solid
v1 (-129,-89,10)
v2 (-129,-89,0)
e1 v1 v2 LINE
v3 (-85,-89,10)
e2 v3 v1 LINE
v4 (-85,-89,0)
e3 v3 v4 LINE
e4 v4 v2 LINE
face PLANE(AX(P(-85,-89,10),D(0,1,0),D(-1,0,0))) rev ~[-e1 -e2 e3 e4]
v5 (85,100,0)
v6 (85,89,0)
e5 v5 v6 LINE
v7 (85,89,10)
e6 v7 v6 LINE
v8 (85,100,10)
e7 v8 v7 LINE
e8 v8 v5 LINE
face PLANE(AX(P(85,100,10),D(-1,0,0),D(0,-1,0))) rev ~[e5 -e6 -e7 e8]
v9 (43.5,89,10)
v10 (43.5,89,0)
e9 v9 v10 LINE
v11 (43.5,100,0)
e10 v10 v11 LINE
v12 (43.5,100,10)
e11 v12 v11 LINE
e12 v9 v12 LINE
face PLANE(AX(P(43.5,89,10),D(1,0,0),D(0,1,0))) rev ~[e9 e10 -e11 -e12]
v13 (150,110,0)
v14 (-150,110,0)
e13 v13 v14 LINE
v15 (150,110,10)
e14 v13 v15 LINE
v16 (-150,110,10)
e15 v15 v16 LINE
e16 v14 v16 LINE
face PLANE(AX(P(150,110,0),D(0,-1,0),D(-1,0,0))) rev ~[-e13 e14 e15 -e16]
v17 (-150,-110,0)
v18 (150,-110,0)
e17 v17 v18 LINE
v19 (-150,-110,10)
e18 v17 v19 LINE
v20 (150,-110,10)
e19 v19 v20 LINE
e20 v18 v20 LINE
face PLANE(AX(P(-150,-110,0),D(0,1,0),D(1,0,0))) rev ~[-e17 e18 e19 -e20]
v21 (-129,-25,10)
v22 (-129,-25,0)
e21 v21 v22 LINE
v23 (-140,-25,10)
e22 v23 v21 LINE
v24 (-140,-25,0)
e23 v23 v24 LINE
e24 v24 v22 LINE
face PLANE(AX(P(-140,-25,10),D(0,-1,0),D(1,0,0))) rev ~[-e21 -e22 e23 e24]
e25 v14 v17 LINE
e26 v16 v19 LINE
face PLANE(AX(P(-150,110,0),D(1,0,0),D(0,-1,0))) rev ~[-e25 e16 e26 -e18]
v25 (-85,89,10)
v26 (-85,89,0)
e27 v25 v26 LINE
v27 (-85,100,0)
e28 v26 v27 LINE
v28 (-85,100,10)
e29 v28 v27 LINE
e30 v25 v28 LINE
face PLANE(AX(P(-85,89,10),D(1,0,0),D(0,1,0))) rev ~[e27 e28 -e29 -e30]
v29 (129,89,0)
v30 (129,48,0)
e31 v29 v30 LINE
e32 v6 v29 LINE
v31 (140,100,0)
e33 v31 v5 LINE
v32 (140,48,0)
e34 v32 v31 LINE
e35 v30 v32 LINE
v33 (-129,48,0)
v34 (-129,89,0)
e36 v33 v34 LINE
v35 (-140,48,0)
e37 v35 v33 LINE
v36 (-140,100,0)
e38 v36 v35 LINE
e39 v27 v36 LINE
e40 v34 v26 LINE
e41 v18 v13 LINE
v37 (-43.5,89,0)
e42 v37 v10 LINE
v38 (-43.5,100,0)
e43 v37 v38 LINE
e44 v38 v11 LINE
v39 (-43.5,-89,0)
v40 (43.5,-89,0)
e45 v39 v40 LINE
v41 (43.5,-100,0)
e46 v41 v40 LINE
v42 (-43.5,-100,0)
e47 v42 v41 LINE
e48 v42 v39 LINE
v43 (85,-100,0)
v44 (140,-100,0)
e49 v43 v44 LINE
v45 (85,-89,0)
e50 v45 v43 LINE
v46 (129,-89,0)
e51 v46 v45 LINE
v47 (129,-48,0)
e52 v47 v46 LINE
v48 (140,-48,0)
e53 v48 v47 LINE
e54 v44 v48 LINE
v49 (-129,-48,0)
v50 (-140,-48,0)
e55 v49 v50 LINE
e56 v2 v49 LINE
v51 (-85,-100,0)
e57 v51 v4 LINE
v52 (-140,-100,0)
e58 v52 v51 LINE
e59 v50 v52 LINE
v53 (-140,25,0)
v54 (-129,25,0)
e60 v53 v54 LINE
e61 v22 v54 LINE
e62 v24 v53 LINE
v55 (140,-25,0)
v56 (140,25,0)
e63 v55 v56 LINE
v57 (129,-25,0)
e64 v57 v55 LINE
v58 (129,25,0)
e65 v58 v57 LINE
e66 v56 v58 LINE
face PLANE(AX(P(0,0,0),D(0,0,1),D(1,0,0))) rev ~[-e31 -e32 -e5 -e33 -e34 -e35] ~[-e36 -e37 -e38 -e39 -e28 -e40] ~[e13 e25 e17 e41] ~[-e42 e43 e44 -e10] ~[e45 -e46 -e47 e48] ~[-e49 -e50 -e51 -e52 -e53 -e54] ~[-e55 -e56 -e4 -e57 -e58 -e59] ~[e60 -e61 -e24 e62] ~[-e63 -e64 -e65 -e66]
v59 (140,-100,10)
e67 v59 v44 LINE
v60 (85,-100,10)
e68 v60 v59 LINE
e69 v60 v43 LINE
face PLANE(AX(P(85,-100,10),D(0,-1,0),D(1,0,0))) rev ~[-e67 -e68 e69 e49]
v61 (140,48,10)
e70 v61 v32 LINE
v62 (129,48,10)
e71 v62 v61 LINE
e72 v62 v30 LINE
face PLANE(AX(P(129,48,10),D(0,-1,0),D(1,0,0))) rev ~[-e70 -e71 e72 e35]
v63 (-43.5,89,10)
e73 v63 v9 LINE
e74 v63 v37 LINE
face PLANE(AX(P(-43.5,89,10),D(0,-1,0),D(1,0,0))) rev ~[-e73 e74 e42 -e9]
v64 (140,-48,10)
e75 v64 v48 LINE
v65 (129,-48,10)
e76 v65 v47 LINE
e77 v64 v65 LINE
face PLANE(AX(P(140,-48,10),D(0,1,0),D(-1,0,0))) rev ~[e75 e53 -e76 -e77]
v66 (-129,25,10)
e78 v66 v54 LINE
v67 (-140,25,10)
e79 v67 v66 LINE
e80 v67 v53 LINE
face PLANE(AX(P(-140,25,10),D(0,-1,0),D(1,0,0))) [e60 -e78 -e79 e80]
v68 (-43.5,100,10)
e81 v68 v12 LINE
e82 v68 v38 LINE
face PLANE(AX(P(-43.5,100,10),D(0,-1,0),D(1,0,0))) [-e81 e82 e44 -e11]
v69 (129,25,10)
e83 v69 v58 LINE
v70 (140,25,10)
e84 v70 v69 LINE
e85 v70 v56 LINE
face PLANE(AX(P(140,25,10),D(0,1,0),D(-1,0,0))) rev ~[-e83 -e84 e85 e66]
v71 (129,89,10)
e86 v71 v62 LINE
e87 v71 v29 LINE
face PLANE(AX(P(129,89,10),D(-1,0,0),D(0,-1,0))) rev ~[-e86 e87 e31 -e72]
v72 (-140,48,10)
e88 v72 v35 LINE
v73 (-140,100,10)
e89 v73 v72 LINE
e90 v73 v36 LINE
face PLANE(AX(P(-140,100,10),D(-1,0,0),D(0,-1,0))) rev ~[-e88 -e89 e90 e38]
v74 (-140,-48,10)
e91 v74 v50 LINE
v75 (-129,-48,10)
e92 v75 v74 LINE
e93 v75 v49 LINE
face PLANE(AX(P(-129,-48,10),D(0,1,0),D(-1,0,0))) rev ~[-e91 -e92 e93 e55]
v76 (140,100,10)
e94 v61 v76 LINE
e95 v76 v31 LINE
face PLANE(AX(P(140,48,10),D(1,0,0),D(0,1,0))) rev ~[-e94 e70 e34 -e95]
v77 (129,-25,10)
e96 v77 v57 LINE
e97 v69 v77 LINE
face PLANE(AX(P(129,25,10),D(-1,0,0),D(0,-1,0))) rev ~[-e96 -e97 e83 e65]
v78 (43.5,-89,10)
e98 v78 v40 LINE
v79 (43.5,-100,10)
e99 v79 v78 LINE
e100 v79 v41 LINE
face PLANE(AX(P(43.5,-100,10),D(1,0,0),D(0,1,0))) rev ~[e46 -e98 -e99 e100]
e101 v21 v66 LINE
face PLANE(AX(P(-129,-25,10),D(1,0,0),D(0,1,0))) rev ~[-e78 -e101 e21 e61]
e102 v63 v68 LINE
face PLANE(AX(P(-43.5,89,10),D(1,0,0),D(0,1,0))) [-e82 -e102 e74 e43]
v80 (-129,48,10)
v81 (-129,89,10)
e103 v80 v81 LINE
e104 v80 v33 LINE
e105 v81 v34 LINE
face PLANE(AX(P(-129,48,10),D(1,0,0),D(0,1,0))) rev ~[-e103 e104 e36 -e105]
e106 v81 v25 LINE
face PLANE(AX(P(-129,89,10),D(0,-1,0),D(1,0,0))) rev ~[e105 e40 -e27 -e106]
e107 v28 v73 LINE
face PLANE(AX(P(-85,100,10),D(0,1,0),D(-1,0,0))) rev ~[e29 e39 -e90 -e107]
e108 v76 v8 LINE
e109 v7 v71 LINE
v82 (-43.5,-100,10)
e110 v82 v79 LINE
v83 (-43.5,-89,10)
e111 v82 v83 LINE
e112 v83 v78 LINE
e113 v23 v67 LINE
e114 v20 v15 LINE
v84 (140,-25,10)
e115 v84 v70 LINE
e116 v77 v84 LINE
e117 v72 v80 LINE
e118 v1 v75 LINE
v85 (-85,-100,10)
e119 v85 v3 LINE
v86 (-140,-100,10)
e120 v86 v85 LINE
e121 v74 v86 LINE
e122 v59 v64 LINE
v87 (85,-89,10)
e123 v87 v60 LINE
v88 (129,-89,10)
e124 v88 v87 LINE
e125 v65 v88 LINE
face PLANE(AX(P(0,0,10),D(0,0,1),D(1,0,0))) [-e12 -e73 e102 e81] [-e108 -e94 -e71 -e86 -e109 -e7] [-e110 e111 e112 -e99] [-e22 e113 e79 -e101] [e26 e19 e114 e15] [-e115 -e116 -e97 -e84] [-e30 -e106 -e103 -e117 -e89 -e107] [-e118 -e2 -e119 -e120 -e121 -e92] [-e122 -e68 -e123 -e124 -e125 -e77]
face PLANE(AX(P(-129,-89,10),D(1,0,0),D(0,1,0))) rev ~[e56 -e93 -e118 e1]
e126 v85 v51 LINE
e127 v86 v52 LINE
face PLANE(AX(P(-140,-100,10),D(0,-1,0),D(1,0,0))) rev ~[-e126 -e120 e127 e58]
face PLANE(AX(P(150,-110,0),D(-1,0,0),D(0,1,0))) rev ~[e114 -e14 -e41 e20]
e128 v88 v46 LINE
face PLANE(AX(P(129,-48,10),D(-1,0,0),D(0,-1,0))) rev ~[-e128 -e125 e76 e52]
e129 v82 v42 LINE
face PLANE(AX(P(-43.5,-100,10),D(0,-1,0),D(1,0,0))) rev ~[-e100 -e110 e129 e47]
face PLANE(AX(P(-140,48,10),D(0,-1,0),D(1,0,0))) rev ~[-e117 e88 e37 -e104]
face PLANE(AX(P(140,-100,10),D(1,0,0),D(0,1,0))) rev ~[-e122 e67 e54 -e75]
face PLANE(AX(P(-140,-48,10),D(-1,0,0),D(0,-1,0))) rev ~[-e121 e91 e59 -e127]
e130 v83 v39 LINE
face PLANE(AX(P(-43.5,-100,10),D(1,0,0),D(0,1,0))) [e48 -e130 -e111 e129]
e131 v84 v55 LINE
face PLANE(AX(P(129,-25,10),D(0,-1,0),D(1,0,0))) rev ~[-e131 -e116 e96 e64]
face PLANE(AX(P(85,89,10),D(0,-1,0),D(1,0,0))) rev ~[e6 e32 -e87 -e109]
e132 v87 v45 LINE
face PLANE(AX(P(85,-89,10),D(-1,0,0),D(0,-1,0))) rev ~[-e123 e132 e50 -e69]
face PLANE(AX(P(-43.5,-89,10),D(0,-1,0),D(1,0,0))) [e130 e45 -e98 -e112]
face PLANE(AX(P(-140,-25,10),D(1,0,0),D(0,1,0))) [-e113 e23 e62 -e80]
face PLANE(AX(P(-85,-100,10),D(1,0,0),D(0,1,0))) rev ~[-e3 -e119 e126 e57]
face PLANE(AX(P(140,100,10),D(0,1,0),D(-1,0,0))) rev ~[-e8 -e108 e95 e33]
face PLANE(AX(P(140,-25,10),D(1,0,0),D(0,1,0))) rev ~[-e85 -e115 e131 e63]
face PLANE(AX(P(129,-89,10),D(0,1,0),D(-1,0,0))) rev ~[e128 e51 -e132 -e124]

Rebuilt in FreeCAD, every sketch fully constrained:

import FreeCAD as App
import Part
import Sketcher


def add_polygon(sketch, points):
    """Adds a closed chain of lines whose ends are joined by coincident constraints."""
    first, n = sketch.GeometryCount, len(points)
    for a, b in zip(points, points[1:] + points[:1]):
        sketch.addGeometry(Part.LineSegment(App.Vector(*a, 0), App.Vector(*b, 0)), False)
    for i in range(n):
        sketch.addConstraint(Sketcher.Constraint("Coincident", first + i, 2, first + (i + 1) % n, 1))

doc = App.newDocument("Part")
params = doc.addObject("Spreadsheet::Sheet", "Params")
for row, (alias, value) in enumerate([
    ("sketch1_width", "300 mm"),
    ("sketch1_height", "220 mm"),
    ("pad1_length", "10 mm"),
    ("sketch2_width", "55 mm"),
    ("sketch2_width2", "44 mm"),
    ("sketch2_height", "52 mm"),
    ("pocket1_length", "10 mm"),
    ("sketch3_width", "87 mm"),
    ("sketch3_height", "11 mm"),
    ("pocket2_length", "10 mm"),
    ("sketch4_width", "11 mm"),
    ("sketch4_height", "50 mm"),
    ("pocket3_length", "10 mm"),
], start=1):
    params.set(f"A{row}", alias)
    params.set(f"B{row}", "=" + value)
    params.setAlias(f"B{row}", alias)

body = doc.addObject("PartDesign::Body", "Body")

# Sketch on XY plane
sketch1 = doc.addObject("Sketcher::SketchObject", "Sketch")
body.addObject(sketch1)
sketch1.AttachmentSupport = (doc.XY_Plane, [""])
sketch1.MapMode = "FlatFace"
add_polygon(sketch1, [(150, 110), (-150, 110), (-150, -110), (150, -110)])  # lines 0-3
sketch1.addConstraint(Sketcher.Constraint("Horizontal", 0))
sketch1.addConstraint(Sketcher.Constraint("Vertical", 1))
sketch1.addConstraint(Sketcher.Constraint("Horizontal", 2))
sketch1.addConstraint(Sketcher.Constraint("Vertical", 3))
sketch1.addConstraint(Sketcher.Constraint("Symmetric", 0, 2, 2, 2, -1, 1))
sketch1.addConstraint(Sketcher.Constraint("DistanceX", 0, 2, 0, 1, 300.0))
sketch1.addConstraint(Sketcher.Constraint("DistanceY", 1, 2, 1, 1, 220.0))
sketch1.setExpression("Constraints[9]", "Params.sketch1_width")
sketch1.setExpression("Constraints[10]", "Params.sketch1_height")
pad1 = doc.addObject("PartDesign::Pad", "Pad")
body.addObject(pad1)
pad1.Profile = sketch1
pad1.setExpression("Length", "Params.pad1_length")

# Sketch on XY plane
sketch2 = doc.addObject("Sketcher::SketchObject", "Sketch001")
body.addObject(sketch2)
sketch2.AttachmentSupport = (doc.XY_Plane, [""])
sketch2.MapMode = "FlatFace"
sketch2.AttachmentOffset = App.Placement(App.Vector(0, 0, 10), App.Rotation())
add_polygon(sketch2, [(140, 48), (140, 100), (85, 100), (85, 89), (129, 89), (129, 48)])  # lines 0-5
add_polygon(sketch2, [(-85, 100), (-140, 100), (-140, 48), (-129, 48), (-129, 89), (-85, 89)])  # lines 6-11
add_polygon(sketch2, [(-140, -48), (-140, -100), (-85, -100), (-85, -89), (-129, -89), (-129, -48)])  # lines 12-17
add_polygon(sketch2, [(85, -100), (140, -100), (140, -48), (129, -48), (129, -89), (85, -89)])  # lines 18-23
sketch2.addConstraint(Sketcher.Constraint("Vertical", 0))
sketch2.addConstraint(Sketcher.Constraint("Horizontal", 1))
sketch2.addConstraint(Sketcher.Constraint("Vertical", 2))
sketch2.addConstraint(Sketcher.Constraint("Horizontal", 3))
sketch2.addConstraint(Sketcher.Constraint("Vertical", 4))
sketch2.addConstraint(Sketcher.Constraint("Horizontal", 5))
sketch2.addConstraint(Sketcher.Constraint("Horizontal", 6))
sketch2.addConstraint(Sketcher.Constraint("Vertical", 7))
sketch2.addConstraint(Sketcher.Constraint("Horizontal", 8))
sketch2.addConstraint(Sketcher.Constraint("Vertical", 9))
sketch2.addConstraint(Sketcher.Constraint("Horizontal", 10))
sketch2.addConstraint(Sketcher.Constraint("Vertical", 11))
sketch2.addConstraint(Sketcher.Constraint("Vertical", 12))
sketch2.addConstraint(Sketcher.Constraint("Horizontal", 13))
sketch2.addConstraint(Sketcher.Constraint("Vertical", 14))
sketch2.addConstraint(Sketcher.Constraint("Horizontal", 15))
sketch2.addConstraint(Sketcher.Constraint("Vertical", 16))
sketch2.addConstraint(Sketcher.Constraint("Horizontal", 17))
sketch2.addConstraint(Sketcher.Constraint("Horizontal", 18))
sketch2.addConstraint(Sketcher.Constraint("Vertical", 19))
sketch2.addConstraint(Sketcher.Constraint("Horizontal", 20))
sketch2.addConstraint(Sketcher.Constraint("Vertical", 21))
sketch2.addConstraint(Sketcher.Constraint("Horizontal", 22))
sketch2.addConstraint(Sketcher.Constraint("Vertical", 23))
sketch2.addConstraint(Sketcher.Constraint("Symmetric", 0, 2, 12, 2, -1, 1))
sketch2.addConstraint(Sketcher.Constraint("Symmetric", 2, 2, 14, 2, -1, 1))
sketch2.addConstraint(Sketcher.Constraint("Symmetric", 4, 2, 16, 2, -1, 1))
sketch2.addConstraint(Sketcher.Constraint("Symmetric", 6, 2, 18, 2, -1, 1))
sketch2.addConstraint(Sketcher.Constraint("Symmetric", 8, 2, 20, 2, -1, 1))
sketch2.addConstraint(Sketcher.Constraint("Symmetric", 10, 2, 22, 2, -1, 1))
sketch2.addConstraint(Sketcher.Constraint("Symmetric", 0, 2, 6, 2, -2))
sketch2.addConstraint(Sketcher.Constraint("Symmetric", 4, 2, 8, 2, -2))
sketch2.addConstraint(Sketcher.Constraint("Symmetric", 2, 2, 10, 2, -2))
sketch2.addConstraint(Sketcher.Constraint("Equal", 20, 2))
sketch2.addConstraint(Sketcher.Constraint("DistanceX", 1, 2, 1, 1, 55.0))
sketch2.addConstraint(Sketcher.Constraint("DistanceX", 3, 1, 3, 2, 44.0))
sketch2.addConstraint(Sketcher.Constraint("DistanceY", 0, 1, 0, 2, 52.0))
sketch2.addConstraint(Sketcher.Constraint("DistanceX", -1, 1, 0, 2, 140.0))
sketch2.addConstraint(Sketcher.Constraint("DistanceY", -1, 1, 0, 2, 100.0))
sketch2.setExpression("Constraints[58]", "Params.sketch2_width")
sketch2.setExpression("Constraints[59]", "Params.sketch2_width2")
sketch2.setExpression("Constraints[60]", "Params.sketch2_height")
pocket1 = doc.addObject("PartDesign::Pocket", "Pocket")
body.addObject(pocket1)
pocket1.Profile = sketch2
pocket1.setExpression("Length", "Params.pocket1_length")

# Sketch on XY plane
sketch3 = doc.addObject("Sketcher::SketchObject", "Sketch002")
body.addObject(sketch3)
sketch3.AttachmentSupport = (doc.XY_Plane, [""])
sketch3.MapMode = "FlatFace"
sketch3.AttachmentOffset = App.Placement(App.Vector(0, 0, 10), App.Rotation())
add_polygon(sketch3, [(-43.5, 100), (-43.5, 89), (43.5, 89), (43.5, 100)])  # lines 0-3
add_polygon(sketch3, [(-43.5, -89), (-43.5, -100), (43.5, -100), (43.5, -89)])  # lines 4-7
sketch3.addConstraint(Sketcher.Constraint("Vertical", 0))
sketch3.addConstraint(Sketcher.Constraint("Horizontal", 1))
sketch3.addConstraint(Sketcher.Constraint("Vertical", 2))
sketch3.addConstraint(Sketcher.Constraint("Horizontal", 3))
sketch3.addConstraint(Sketcher.Constraint("Vertical", 4))
sketch3.addConstraint(Sketcher.Constraint("Horizontal", 5))
sketch3.addConstraint(Sketcher.Constraint("Vertical", 6))
sketch3.addConstraint(Sketcher.Constraint("Horizontal", 7))
sketch3.addConstraint(Sketcher.Constraint("Symmetric", 2, 2, 4, 2, -1, 1))
sketch3.addConstraint(Sketcher.Constraint("Symmetric", 0, 2, 6, 2, -1, 1))
sketch3.addConstraint(Sketcher.Constraint("Vertical", 3, 2, 4, 2))
sketch3.addConstraint(Sketcher.Constraint("DistanceX", 1, 1, 1, 2, 87.0))
sketch3.addConstraint(Sketcher.Constraint("DistanceY", 0, 2, 0, 1, 11.0))
sketch3.addConstraint(Sketcher.Constraint("DistanceY", -1, 1, 0, 2, 89.0))
sketch3.setExpression("Constraints[19]", "Params.sketch3_width")
sketch3.setExpression("Constraints[20]", "Params.sketch3_height")
pocket2 = doc.addObject("PartDesign::Pocket", "Pocket001")
body.addObject(pocket2)
pocket2.Profile = sketch3
pocket2.setExpression("Length", "Params.pocket2_length")

# Sketch on XY plane
sketch4 = doc.addObject("Sketcher::SketchObject", "Sketch003")
body.addObject(sketch4)
sketch4.AttachmentSupport = (doc.XY_Plane, [""])
sketch4.MapMode = "FlatFace"
sketch4.AttachmentOffset = App.Placement(App.Vector(0, 0, 10), App.Rotation())
add_polygon(sketch4, [(-140, 25), (-140, -25), (-129, -25), (-129, 25)])  # lines 0-3
add_polygon(sketch4, [(140, -25), (140, 25), (129, 25), (129, -25)])  # lines 4-7
sketch4.addConstraint(Sketcher.Constraint("Vertical", 0))
sketch4.addConstraint(Sketcher.Constraint("Horizontal", 1))
sketch4.addConstraint(Sketcher.Constraint("Vertical", 2))
sketch4.addConstraint(Sketcher.Constraint("Horizontal", 3))
sketch4.addConstraint(Sketcher.Constraint("Vertical", 4))
sketch4.addConstraint(Sketcher.Constraint("Horizontal", 5))
sketch4.addConstraint(Sketcher.Constraint("Vertical", 6))
sketch4.addConstraint(Sketcher.Constraint("Horizontal", 7))
sketch4.addConstraint(Sketcher.Constraint("Symmetric", 0, 2, 4, 2, -1, 1))
sketch4.addConstraint(Sketcher.Constraint("Symmetric", 2, 2, 6, 2, -1, 1))
sketch4.addConstraint(Sketcher.Constraint("Horizontal", 3, 2, 4, 2))
sketch4.addConstraint(Sketcher.Constraint("DistanceX", 1, 1, 1, 2, 11.0))
sketch4.addConstraint(Sketcher.Constraint("DistanceY", 0, 2, 0, 1, 50.0))
sketch4.addConstraint(Sketcher.Constraint("DistanceX", 0, 2, -1, 1, 140.0))
sketch4.setExpression("Constraints[19]", "Params.sketch4_width")
sketch4.setExpression("Constraints[20]", "Params.sketch4_height")
pocket3 = doc.addObject("PartDesign::Pocket", "Pocket002")
body.addObject(pocket3)
pocket3.Profile = sketch4
pocket3.setExpression("Length", "Params.pocket3_length")

doc.recompute()
